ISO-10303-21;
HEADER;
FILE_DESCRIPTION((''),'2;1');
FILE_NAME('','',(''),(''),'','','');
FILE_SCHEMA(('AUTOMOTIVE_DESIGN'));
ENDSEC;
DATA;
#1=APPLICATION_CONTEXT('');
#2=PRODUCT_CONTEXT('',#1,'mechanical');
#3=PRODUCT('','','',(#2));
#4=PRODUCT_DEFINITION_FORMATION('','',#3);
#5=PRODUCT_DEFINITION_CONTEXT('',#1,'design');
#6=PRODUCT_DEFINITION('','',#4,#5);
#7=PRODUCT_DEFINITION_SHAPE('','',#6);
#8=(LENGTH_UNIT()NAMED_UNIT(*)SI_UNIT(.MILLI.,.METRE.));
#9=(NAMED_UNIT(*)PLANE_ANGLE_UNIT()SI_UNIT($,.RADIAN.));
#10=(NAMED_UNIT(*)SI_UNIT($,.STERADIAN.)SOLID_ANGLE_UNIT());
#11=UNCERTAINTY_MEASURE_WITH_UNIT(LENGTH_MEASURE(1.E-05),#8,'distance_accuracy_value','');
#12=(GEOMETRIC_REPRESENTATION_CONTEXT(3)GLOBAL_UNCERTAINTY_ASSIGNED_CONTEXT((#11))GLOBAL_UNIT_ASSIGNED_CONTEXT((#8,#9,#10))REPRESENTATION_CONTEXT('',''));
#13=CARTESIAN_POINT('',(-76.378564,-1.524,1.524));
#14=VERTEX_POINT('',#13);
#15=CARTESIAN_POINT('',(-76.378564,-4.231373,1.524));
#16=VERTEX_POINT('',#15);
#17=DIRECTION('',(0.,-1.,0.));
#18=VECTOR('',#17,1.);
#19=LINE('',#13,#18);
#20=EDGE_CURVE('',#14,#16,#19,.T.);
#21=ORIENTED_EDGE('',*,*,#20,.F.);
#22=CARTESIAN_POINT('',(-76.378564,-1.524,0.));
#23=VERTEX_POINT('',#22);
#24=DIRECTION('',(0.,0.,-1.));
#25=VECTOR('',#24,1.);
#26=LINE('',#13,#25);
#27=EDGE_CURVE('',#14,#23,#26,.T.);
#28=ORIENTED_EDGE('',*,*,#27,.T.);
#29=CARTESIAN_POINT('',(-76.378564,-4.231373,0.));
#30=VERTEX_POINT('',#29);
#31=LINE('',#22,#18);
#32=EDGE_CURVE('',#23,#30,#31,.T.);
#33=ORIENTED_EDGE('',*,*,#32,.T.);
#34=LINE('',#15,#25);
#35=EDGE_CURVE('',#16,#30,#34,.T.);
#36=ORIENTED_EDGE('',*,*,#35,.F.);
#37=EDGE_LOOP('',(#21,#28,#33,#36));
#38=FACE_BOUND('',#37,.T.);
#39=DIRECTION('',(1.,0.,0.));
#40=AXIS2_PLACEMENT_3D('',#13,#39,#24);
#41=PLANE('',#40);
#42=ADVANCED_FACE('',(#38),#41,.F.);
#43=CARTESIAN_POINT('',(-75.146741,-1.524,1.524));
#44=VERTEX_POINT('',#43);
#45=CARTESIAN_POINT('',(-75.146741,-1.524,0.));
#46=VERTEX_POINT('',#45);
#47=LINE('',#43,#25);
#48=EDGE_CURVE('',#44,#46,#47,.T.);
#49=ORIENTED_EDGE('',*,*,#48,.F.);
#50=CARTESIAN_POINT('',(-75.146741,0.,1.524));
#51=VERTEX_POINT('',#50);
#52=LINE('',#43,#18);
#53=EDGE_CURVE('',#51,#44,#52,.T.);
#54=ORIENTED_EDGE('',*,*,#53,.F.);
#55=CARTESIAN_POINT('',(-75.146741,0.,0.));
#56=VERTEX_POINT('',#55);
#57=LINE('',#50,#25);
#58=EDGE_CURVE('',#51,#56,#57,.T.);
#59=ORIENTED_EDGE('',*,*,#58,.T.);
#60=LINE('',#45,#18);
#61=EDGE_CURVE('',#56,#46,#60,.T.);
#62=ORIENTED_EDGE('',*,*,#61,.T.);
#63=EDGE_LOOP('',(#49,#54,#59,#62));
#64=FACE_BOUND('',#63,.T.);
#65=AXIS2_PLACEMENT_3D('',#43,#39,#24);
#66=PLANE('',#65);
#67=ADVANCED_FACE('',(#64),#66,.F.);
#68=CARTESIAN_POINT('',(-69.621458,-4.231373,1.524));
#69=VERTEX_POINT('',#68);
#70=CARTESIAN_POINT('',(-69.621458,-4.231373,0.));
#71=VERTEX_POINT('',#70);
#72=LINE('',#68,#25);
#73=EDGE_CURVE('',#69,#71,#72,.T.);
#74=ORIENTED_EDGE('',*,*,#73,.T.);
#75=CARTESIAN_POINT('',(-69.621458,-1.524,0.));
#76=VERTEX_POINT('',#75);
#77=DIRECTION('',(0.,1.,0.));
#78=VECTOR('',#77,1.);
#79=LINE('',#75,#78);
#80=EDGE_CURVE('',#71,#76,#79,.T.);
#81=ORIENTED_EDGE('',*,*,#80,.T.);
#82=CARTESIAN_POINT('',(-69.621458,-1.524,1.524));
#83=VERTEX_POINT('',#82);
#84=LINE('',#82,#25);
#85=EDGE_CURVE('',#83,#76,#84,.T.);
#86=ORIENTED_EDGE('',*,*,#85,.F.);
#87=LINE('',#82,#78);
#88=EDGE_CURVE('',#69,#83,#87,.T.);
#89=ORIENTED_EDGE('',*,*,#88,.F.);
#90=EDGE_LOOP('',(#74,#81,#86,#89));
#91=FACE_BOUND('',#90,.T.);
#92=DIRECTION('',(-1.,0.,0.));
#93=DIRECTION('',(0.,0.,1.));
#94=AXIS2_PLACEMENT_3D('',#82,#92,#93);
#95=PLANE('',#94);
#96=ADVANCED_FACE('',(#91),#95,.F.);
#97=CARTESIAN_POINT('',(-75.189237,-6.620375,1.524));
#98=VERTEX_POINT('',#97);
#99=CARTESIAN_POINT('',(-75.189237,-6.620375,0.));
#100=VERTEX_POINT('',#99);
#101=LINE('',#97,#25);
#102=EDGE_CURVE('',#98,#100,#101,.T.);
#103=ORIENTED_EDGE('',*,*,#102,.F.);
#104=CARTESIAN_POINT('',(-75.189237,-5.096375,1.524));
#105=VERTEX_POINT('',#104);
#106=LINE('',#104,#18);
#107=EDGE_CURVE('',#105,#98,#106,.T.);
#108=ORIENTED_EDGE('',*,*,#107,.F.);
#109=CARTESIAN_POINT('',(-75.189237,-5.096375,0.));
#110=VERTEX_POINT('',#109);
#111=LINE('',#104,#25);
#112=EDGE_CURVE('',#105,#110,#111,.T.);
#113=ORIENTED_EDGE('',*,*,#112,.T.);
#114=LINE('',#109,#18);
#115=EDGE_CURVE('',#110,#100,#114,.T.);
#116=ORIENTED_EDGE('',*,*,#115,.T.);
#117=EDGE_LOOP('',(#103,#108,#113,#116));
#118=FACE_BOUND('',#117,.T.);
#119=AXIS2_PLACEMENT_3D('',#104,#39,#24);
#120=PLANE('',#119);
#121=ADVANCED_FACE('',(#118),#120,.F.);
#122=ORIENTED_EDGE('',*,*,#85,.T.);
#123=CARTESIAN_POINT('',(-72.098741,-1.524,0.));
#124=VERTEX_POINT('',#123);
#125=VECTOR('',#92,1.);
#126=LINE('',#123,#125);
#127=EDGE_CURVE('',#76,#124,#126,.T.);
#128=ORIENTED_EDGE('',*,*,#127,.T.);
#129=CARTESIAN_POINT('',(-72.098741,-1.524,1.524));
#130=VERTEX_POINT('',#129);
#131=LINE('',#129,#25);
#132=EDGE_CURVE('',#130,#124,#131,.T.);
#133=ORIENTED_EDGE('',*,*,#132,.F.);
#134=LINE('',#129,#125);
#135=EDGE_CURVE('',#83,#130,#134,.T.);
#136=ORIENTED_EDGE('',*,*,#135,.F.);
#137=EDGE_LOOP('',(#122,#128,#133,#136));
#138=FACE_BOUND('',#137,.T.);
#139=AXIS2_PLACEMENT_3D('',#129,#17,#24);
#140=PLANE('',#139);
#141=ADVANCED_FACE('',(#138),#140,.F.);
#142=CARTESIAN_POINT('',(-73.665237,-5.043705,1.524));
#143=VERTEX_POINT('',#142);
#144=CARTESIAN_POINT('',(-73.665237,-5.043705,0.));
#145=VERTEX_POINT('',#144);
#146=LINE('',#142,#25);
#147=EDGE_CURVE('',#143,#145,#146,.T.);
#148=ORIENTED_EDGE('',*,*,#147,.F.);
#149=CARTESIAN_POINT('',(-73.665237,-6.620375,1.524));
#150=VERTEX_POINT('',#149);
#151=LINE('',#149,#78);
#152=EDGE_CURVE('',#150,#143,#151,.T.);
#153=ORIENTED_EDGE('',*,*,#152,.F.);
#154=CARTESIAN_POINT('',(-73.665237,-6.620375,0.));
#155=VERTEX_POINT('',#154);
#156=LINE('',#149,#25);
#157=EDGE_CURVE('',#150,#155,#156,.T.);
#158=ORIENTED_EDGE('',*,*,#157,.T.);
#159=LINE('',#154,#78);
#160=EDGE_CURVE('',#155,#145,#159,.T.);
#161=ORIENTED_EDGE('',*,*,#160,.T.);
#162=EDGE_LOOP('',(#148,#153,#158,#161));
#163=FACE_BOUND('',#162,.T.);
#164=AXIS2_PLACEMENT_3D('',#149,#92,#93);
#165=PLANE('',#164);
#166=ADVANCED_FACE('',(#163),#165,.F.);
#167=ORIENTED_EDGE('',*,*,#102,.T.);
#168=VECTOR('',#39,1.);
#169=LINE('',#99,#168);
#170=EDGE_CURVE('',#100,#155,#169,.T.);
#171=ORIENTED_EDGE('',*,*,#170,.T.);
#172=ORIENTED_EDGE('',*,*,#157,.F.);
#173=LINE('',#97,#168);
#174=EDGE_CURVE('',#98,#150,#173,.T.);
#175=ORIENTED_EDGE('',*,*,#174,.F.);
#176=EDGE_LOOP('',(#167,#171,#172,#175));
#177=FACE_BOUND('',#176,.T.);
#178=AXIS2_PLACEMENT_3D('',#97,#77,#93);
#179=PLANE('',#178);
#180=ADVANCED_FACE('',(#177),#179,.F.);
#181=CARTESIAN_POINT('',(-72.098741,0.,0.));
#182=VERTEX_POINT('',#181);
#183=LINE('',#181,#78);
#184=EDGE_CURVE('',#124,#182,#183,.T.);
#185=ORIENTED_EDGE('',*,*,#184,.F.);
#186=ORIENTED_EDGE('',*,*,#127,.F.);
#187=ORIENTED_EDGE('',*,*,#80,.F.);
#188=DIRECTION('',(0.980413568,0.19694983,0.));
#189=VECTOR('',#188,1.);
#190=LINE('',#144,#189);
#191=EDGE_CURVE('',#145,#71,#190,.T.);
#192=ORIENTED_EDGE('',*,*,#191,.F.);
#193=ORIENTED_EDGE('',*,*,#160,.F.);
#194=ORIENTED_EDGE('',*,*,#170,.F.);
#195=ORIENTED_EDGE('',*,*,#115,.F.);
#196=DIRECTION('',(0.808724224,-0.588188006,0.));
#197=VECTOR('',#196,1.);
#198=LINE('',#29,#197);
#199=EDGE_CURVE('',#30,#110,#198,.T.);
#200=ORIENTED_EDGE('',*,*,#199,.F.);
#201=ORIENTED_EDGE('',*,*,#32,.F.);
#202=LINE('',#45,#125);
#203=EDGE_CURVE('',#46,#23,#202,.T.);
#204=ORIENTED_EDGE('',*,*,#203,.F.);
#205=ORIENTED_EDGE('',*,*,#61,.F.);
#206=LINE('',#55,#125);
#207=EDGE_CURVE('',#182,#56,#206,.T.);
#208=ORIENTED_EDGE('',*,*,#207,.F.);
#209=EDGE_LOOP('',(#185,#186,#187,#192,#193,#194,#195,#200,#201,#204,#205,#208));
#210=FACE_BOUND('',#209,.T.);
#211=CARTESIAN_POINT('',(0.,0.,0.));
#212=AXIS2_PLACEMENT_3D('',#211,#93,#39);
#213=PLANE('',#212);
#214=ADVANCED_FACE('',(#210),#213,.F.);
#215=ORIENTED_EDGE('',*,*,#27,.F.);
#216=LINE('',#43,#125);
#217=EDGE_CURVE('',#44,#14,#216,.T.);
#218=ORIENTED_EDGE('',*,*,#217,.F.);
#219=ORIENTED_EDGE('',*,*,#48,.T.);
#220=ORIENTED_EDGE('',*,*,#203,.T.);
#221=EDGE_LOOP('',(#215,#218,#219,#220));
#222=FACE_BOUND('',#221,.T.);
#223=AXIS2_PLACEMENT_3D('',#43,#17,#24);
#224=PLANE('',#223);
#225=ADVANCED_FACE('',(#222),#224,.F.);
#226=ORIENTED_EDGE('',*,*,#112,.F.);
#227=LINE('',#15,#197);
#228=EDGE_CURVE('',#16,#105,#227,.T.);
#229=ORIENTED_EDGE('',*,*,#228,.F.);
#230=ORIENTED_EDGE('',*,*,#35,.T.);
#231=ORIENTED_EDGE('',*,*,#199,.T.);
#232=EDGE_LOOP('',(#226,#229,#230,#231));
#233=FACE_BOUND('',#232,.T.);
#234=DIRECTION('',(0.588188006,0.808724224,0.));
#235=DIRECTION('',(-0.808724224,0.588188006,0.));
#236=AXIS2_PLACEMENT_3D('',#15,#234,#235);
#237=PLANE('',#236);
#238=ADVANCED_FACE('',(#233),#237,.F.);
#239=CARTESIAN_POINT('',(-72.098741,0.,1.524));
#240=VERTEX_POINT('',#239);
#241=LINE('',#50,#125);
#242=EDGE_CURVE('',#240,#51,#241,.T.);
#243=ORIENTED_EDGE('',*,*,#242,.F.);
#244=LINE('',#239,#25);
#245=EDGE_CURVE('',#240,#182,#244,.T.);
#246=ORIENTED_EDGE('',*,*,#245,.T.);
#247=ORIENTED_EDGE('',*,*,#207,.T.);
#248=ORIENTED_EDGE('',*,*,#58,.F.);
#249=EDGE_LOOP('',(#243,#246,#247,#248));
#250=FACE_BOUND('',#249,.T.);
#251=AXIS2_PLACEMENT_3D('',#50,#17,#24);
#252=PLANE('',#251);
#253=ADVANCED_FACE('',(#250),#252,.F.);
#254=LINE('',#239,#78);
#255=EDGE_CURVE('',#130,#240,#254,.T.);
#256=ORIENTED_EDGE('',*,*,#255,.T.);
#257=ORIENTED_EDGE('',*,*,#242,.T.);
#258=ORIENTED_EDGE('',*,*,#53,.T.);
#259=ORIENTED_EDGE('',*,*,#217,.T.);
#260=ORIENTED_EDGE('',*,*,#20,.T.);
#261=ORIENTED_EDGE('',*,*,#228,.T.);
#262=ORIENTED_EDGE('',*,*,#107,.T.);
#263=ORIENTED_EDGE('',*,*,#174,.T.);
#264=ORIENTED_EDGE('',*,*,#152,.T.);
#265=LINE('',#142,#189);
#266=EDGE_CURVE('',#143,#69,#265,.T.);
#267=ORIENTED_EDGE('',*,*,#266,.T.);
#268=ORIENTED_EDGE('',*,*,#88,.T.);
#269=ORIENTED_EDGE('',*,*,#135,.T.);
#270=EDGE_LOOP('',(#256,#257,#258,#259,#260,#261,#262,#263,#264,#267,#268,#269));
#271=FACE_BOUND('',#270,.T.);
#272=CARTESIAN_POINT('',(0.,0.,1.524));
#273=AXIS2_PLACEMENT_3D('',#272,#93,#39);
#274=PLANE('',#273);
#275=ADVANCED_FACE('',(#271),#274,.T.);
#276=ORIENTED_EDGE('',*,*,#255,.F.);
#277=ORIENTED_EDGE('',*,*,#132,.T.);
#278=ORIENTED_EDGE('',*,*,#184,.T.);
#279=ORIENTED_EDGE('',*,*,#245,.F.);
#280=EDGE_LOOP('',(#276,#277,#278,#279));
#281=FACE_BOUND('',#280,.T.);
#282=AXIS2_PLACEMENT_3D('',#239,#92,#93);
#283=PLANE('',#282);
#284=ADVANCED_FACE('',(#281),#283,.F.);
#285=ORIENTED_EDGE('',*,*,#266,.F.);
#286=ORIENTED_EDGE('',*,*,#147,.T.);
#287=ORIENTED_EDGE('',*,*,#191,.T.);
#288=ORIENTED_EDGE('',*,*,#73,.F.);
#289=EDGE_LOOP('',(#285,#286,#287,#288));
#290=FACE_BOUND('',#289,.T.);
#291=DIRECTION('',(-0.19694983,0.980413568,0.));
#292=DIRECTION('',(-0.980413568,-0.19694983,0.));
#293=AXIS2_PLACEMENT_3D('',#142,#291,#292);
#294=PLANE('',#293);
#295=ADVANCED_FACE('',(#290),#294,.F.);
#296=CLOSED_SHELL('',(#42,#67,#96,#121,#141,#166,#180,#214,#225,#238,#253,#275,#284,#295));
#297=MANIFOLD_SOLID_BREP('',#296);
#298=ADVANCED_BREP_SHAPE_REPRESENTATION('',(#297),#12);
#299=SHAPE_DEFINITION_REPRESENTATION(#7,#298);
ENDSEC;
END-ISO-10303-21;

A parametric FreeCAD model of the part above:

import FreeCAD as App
import Part
import Sketcher
from FreeCAD import Vector
Q = App.Units.Quantity


def add_polygon(sketch, points):
    """Adds a closed chain of lines whose ends are joined by coincident constraints."""
    first, n = sketch.GeometryCount, len(points)
    for a, b in zip(points, points[1:] + points[:1]):
        sketch.addGeometry(Part.LineSegment(App.Vector(*a, 0), App.Vector(*b, 0)), False)
    for i in range(n):
        sketch.addConstraint(Sketcher.Constraint("Coincident", first + i, 2, first + (i + 1) % n, 1))

doc = App.newDocument("Part")
body = doc.addObject("PartDesign::Body", "Body")

# Sketch on XY plane
sketch1 = doc.addObject("Sketcher::SketchObject", "Sketch")
body.addObject(sketch1)
sketch1.AttachmentSupport = (doc.XY_Plane, [""])
sketch1.MapMode = "FlatFace"
add_polygon(sketch1, [(-75.1, 0), (-75.1, -1.5), (-76.4, -1.5), (-76.4, -4.2), (-75.2, -5.1), (-75.2, -6.6), (-73.7, -6.6), (-73.7, -5), (-69.6, -4.2), (-69.6, -1.5), (-72.1, -1.5), (-72.1, 0)])  # lines 0-11
sketch1.addConstraint([
    Sketcher.Constraint("Vertical", 0),
    Sketcher.Constraint("Horizontal", 1),
    Sketcher.Constraint("Vertical", 2),
    Sketcher.Constraint("Vertical", 4),
    Sketcher.Constraint("Horizontal", 5),
    Sketcher.Constraint("Vertical", 6),
    Sketcher.Constraint("Vertical", 8),
    Sketcher.Constraint("Horizontal", 9),
    Sketcher.Constraint("Vertical", 10),
    Sketcher.Constraint("Horizontal", 11),
    Sketcher.Constraint("PointOnObject", 10, 2, -1),
    Sketcher.Constraint("Horizontal", 2, 2, 7, 2),
    Sketcher.Constraint("Horizontal", 1, 2, 8, 2),
    Sketcher.Constraint("Equal", 5, 0),
    Sketcher.Constraint("Equal", 0, 4),
    Sketcher.Constraint("DistanceX", 5, 1, 5, 2, Q("0.06 in")),
    Sketcher.Constraint("DistanceX", 11, 2, 11, 1, Q("0.12 in")),
    Sketcher.Constraint("DistanceY", 6, 1, 6, 2, 1.57667),
    Sketcher.Constraint("DistanceY", 3, 2, 2, 2, 0.865002),
    Sketcher.Constraint("Distance", 3, 1.470621),
    Sketcher.Constraint("DistanceX", 1, 2, 1, 1, 1.231823),
    Sketcher.Constraint("DistanceX", 9, 2, 9, 1, 2.477283),
    Sketcher.Constraint("DistanceY", 2, 2, 2, 1, 2.707373),
    Sketcher.Constraint("DistanceX", 0, 2, -1, 1, 75.146741),
])
pad1 = doc.addObject("PartDesign::Pad", "Pad")
body.addObject(pad1)
pad1.Profile = sketch1
pad1.Length = Q("0.06 in")

doc.recompute()
